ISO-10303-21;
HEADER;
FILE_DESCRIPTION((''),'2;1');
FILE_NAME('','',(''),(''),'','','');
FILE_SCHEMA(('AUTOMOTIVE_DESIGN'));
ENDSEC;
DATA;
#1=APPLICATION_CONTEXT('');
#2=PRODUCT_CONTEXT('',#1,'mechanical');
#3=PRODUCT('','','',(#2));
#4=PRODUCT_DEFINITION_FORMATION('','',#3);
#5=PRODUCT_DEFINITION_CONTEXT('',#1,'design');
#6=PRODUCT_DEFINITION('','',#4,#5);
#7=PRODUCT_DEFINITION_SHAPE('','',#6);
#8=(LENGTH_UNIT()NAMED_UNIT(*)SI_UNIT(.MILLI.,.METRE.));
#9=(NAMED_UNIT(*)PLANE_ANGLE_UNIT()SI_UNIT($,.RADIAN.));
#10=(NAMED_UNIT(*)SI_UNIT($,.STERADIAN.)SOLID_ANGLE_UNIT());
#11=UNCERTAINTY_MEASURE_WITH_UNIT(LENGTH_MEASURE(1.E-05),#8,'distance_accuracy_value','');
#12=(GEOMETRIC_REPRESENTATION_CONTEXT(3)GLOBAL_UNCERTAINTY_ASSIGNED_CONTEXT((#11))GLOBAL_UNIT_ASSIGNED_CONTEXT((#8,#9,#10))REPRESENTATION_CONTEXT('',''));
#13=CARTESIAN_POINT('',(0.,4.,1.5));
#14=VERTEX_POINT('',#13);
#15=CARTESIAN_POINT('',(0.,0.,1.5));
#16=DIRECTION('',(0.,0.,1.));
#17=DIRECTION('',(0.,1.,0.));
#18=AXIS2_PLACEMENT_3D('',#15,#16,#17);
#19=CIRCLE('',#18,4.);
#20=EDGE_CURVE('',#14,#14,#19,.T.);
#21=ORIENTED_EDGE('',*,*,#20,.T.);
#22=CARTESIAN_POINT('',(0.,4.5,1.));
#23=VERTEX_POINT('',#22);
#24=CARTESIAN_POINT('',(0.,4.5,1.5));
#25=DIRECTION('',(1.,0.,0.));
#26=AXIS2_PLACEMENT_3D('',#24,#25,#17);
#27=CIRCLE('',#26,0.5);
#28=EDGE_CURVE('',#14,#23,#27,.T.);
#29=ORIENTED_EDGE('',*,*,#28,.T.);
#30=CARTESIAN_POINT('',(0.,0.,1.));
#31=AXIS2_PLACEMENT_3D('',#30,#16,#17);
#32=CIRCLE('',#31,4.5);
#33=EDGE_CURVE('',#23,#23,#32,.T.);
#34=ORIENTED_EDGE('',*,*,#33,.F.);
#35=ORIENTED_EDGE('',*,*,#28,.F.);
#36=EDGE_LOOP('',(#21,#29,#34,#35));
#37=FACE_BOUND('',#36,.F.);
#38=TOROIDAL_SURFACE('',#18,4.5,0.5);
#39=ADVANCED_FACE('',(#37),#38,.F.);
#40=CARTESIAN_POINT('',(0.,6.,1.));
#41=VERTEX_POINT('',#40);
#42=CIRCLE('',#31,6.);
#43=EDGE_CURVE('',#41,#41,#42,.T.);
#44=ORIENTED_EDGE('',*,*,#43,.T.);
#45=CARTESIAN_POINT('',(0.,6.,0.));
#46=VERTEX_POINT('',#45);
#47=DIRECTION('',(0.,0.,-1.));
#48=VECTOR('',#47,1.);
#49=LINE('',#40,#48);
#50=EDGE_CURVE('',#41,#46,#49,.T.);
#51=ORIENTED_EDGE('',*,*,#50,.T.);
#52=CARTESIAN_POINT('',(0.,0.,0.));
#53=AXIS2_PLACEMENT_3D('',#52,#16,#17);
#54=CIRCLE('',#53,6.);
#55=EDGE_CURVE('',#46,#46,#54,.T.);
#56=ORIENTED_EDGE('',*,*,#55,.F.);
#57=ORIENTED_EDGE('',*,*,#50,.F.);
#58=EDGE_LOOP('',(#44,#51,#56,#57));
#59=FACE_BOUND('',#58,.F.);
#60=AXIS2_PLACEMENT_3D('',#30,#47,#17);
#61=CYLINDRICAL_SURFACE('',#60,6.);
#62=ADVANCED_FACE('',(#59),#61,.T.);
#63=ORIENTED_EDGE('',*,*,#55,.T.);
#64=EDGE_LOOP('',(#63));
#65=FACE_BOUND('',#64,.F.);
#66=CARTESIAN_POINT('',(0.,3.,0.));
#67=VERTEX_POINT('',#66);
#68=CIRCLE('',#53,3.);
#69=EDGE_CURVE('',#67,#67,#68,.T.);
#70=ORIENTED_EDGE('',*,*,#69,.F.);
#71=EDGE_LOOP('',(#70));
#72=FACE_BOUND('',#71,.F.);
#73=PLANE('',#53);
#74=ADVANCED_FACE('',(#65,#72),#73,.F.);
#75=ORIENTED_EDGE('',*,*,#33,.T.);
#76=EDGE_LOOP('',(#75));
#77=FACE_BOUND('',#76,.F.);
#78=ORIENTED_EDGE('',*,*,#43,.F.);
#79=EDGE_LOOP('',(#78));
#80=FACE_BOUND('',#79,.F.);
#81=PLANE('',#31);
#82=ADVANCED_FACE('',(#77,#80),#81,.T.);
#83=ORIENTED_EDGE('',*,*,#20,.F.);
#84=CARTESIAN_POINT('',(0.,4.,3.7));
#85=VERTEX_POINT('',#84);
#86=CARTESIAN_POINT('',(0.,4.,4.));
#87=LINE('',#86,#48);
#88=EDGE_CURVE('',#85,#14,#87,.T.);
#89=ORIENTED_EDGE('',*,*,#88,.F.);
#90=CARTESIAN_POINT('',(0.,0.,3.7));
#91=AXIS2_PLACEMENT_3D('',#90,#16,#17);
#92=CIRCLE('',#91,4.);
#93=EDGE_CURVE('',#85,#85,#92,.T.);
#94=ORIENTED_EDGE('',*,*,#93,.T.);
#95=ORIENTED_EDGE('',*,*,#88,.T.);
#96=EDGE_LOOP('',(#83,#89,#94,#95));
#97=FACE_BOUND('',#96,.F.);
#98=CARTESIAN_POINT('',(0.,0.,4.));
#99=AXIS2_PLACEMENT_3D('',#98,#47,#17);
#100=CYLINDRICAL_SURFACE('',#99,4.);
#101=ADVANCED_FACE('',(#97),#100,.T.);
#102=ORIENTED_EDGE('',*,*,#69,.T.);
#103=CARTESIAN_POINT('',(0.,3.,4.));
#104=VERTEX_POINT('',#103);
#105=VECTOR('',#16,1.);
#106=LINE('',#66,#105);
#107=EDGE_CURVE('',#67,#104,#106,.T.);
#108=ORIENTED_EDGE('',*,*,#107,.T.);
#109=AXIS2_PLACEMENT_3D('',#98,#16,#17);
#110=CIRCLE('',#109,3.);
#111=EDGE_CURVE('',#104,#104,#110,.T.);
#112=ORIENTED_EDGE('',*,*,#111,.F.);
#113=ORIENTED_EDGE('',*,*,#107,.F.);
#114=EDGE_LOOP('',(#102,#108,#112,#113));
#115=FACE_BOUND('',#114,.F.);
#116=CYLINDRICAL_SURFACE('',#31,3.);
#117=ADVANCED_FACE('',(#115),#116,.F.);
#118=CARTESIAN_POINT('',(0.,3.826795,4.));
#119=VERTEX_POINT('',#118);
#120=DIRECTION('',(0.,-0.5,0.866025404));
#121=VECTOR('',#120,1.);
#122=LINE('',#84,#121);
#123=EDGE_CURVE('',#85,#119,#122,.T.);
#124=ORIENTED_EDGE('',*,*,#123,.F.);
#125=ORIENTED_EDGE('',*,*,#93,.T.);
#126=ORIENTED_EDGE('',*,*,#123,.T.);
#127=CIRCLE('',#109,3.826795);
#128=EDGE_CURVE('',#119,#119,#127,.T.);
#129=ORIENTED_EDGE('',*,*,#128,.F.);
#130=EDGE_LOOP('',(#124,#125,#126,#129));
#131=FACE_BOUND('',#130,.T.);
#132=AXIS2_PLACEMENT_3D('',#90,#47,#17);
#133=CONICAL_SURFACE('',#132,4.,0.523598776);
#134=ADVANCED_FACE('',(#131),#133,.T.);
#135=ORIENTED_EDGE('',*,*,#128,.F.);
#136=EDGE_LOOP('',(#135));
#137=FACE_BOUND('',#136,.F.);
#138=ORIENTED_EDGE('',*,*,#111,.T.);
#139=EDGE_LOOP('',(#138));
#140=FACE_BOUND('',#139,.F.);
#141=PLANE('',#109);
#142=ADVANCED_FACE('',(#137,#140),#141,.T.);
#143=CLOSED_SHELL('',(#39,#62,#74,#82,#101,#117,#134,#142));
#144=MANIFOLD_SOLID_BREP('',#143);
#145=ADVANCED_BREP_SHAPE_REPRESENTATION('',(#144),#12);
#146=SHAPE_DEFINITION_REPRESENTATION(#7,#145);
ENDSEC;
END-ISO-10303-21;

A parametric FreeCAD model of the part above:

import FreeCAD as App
import Part
import Sketcher
from FreeCAD import Vector


def edges_at(feature, points):
    """Names of the edges that pass closest to the given points."""
    edges = feature.Shape.Edges
    near = lambda p: min(range(len(edges)), key=lambda i: edges[i].distToShape(Part.Vertex(*p))[0])
    return sorted({f"Edge{near(p) + 1}" for p in points})


def add_polygon(sketch, points):
    """Adds a closed chain of lines whose ends are joined by coincident constraints."""
    first, n = sketch.GeometryCount, len(points)
    for a, b in zip(points, points[1:] + points[:1]):
        sketch.addGeometry(Part.LineSegment(App.Vector(*a, 0), App.Vector(*b, 0)), False)
    for i in range(n):
        sketch.addConstraint(Sketcher.Constraint("Coincident", first + i, 2, first + (i + 1) % n, 1))

doc = App.newDocument("Part")
body = doc.addObject("PartDesign::Body", "Body")

# Sketch on YZ plane
sketch1 = body.newObject("Sketcher::SketchObject", "Sketch")
sketch1.AttachmentSupport = (doc.getObject("YZ_Plane"), [""])
sketch1.MapMode = "FlatFace"
add_polygon(sketch1, [(4, 4), (3, 4), (3, 0), (6, 0), (6, 1), (4, 1)])  # lines 0-5
sketch1.addConstraint(Sketcher.Constraint("Horizontal", 0))
sketch1.addConstraint(Sketcher.Constraint("Vertical", 1))
sketch1.addConstraint(Sketcher.Constraint("Horizontal", 2))
sketch1.addConstraint(Sketcher.Constraint("Vertical", 3))
sketch1.addConstraint(Sketcher.Constraint("Horizontal", 4))
sketch1.addConstraint(Sketcher.Constraint("Vertical", 5))
sketch1.addConstraint(Sketcher.Constraint("PointOnObject", 1, 2, -1))
sketch1.addConstraint(Sketcher.Constraint("Equal", 0, 3))
sketch1.addConstraint(Sketcher.Constraint("Equal", 2, 5))
sketch1.addConstraint(Sketcher.Constraint("DistanceX", 0, 2, 0, 1, 1.0))
sketch1.addConstraint(Sketcher.Constraint("DistanceY", 1, 2, 1, 1, 4.0))
sketch1.addConstraint(Sketcher.Constraint("DistanceX", -1, 1, 2, 2, 6.0))
revolution = body.newObject("PartDesign::Revolution", "Revolution")
revolution.Profile = sketch1
revolution.ReferenceAxis = (sketch1, ["V_Axis"])
revolution.Angle = 360
doc.recompute()

fillet = body.newObject("PartDesign::Fillet", "Fillet")
fillet.Base = (revolution, edges_at(revolution, [(0, -4, 1)]))
fillet.Radius = 0.5
doc.recompute()

chamfer = body.newObject("PartDesign::Chamfer", "Chamfer")
chamfer.Base = (fillet, edges_at(fillet, [(0, -4, 4)]))
chamfer.ChamferType = "Distance and Angle"
chamfer.Size = 0.3
chamfer.Angle = 30

doc.recompute()
